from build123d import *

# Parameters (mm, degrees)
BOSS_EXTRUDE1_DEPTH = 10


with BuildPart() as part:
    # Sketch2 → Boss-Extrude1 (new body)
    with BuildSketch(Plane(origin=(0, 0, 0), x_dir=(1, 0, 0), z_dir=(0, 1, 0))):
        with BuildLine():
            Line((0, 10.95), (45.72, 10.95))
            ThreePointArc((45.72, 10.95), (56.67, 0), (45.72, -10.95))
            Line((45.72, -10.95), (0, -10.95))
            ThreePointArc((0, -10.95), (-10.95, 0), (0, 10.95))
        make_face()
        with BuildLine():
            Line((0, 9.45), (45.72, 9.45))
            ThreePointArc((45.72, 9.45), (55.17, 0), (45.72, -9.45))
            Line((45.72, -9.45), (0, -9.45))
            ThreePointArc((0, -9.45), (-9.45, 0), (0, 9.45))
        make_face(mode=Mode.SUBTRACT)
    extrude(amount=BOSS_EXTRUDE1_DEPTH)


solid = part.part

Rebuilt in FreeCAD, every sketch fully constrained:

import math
import FreeCAD as App
import Part
import Sketcher

V = App.Vector
Q = App.Units.Quantity

doc = App.newDocument("Part")
body = doc.addObject("PartDesign::Body", "Body")

# Sketch on XZ plane
sketch1 = body.newObject("Sketcher::SketchObject", "Sketch")
sketch1.AttachmentSupport = (doc.getObject("XZ_Plane"), [""])
sketch1.MapMode = "FlatFace"
sketch1.addGeometry(Part.LineSegment(V(46, -11, 0), V(0, -11, 0)), False)
sketch1.addGeometry(Part.ArcOfCircle(Part.Circle(V(0, 0, 0), V(0, 0, 1), 11), math.radians(90), math.radians(270)), False)
sketch1.addGeometry(Part.LineSegment(V(0, 11, 0), V(46, 11, 0)), False)
sketch1.addGeometry(Part.ArcOfCircle(Part.Circle(V(46, 0, 0), V(0, 0, 1), 11), math.radians(-90), math.radians(90)), False)
sketch1.addGeometry(Part.LineSegment(V(0, -9, 0), V(46, -9, 0)), False)
sketch1.addGeometry(Part.ArcOfCircle(Part.Circle(V(46, 0, 0), V(0, 0, 1), 9), math.radians(-90), math.radians(90)), False)
sketch1.addGeometry(Part.LineSegment(V(46, 9, 0), V(0, 9, 0)), False)
sketch1.addGeometry(Part.ArcOfCircle(Part.Circle(V(0, 0, 0), V(0, 0, 1), 9), math.radians(90), math.radians(270)), False)
sketch1.addConstraint(Sketcher.Constraint("Tangent", 0, 2, 1, 2))
sketch1.addConstraint(Sketcher.Constraint("Tangent", 1, 1, 2, 1))
sketch1.addConstraint(Sketcher.Constraint("Tangent", 2, 2, 3, 2))
sketch1.addConstraint(Sketcher.Constraint("Tangent", 3, 1, 0, 1))
sketch1.addConstraint(Sketcher.Constraint("Tangent", 4, 2, 5, 1))
sketch1.addConstraint(Sketcher.Constraint("Tangent", 5, 2, 6, 1))
sketch1.addConstraint(Sketcher.Constraint("Tangent", 6, 2, 7, 1))
sketch1.addConstraint(Sketcher.Constraint("Tangent", 7, 2, 4, 1))
sketch1.addConstraint(Sketcher.Constraint("Horizontal", 0))
sketch1.addConstraint(Sketcher.Constraint("Horizontal", 2))
sketch1.addConstraint(Sketcher.Constraint("Horizontal", 4))
sketch1.addConstraint(Sketcher.Constraint("Horizontal", 6))
sketch1.addConstraint(Sketcher.Constraint("Coincident", 1, 3, -1, 1))
sketch1.addConstraint(Sketcher.Constraint("Coincident", 7, 3, -1, 1))
sketch1.addConstraint(Sketcher.Constraint("Vertical", 5, 3, 2, 2))
sketch1.addConstraint(Sketcher.Constraint("Radius", 1, Q("10.95 mm")))
sketch1.addConstraint(Sketcher.Constraint("Radius", 5, Q("9.45 mm")))
sketch1.addConstraint(Sketcher.Constraint("DistanceX", 0, 2, 0, 1, Q("45.72 mm")))
pad1 = body.newObject("PartDesign::Pad", "Pad")
pad1.Profile = sketch1
pad1.Length = 10
pad1.Reversed = True

doc.recompute()
